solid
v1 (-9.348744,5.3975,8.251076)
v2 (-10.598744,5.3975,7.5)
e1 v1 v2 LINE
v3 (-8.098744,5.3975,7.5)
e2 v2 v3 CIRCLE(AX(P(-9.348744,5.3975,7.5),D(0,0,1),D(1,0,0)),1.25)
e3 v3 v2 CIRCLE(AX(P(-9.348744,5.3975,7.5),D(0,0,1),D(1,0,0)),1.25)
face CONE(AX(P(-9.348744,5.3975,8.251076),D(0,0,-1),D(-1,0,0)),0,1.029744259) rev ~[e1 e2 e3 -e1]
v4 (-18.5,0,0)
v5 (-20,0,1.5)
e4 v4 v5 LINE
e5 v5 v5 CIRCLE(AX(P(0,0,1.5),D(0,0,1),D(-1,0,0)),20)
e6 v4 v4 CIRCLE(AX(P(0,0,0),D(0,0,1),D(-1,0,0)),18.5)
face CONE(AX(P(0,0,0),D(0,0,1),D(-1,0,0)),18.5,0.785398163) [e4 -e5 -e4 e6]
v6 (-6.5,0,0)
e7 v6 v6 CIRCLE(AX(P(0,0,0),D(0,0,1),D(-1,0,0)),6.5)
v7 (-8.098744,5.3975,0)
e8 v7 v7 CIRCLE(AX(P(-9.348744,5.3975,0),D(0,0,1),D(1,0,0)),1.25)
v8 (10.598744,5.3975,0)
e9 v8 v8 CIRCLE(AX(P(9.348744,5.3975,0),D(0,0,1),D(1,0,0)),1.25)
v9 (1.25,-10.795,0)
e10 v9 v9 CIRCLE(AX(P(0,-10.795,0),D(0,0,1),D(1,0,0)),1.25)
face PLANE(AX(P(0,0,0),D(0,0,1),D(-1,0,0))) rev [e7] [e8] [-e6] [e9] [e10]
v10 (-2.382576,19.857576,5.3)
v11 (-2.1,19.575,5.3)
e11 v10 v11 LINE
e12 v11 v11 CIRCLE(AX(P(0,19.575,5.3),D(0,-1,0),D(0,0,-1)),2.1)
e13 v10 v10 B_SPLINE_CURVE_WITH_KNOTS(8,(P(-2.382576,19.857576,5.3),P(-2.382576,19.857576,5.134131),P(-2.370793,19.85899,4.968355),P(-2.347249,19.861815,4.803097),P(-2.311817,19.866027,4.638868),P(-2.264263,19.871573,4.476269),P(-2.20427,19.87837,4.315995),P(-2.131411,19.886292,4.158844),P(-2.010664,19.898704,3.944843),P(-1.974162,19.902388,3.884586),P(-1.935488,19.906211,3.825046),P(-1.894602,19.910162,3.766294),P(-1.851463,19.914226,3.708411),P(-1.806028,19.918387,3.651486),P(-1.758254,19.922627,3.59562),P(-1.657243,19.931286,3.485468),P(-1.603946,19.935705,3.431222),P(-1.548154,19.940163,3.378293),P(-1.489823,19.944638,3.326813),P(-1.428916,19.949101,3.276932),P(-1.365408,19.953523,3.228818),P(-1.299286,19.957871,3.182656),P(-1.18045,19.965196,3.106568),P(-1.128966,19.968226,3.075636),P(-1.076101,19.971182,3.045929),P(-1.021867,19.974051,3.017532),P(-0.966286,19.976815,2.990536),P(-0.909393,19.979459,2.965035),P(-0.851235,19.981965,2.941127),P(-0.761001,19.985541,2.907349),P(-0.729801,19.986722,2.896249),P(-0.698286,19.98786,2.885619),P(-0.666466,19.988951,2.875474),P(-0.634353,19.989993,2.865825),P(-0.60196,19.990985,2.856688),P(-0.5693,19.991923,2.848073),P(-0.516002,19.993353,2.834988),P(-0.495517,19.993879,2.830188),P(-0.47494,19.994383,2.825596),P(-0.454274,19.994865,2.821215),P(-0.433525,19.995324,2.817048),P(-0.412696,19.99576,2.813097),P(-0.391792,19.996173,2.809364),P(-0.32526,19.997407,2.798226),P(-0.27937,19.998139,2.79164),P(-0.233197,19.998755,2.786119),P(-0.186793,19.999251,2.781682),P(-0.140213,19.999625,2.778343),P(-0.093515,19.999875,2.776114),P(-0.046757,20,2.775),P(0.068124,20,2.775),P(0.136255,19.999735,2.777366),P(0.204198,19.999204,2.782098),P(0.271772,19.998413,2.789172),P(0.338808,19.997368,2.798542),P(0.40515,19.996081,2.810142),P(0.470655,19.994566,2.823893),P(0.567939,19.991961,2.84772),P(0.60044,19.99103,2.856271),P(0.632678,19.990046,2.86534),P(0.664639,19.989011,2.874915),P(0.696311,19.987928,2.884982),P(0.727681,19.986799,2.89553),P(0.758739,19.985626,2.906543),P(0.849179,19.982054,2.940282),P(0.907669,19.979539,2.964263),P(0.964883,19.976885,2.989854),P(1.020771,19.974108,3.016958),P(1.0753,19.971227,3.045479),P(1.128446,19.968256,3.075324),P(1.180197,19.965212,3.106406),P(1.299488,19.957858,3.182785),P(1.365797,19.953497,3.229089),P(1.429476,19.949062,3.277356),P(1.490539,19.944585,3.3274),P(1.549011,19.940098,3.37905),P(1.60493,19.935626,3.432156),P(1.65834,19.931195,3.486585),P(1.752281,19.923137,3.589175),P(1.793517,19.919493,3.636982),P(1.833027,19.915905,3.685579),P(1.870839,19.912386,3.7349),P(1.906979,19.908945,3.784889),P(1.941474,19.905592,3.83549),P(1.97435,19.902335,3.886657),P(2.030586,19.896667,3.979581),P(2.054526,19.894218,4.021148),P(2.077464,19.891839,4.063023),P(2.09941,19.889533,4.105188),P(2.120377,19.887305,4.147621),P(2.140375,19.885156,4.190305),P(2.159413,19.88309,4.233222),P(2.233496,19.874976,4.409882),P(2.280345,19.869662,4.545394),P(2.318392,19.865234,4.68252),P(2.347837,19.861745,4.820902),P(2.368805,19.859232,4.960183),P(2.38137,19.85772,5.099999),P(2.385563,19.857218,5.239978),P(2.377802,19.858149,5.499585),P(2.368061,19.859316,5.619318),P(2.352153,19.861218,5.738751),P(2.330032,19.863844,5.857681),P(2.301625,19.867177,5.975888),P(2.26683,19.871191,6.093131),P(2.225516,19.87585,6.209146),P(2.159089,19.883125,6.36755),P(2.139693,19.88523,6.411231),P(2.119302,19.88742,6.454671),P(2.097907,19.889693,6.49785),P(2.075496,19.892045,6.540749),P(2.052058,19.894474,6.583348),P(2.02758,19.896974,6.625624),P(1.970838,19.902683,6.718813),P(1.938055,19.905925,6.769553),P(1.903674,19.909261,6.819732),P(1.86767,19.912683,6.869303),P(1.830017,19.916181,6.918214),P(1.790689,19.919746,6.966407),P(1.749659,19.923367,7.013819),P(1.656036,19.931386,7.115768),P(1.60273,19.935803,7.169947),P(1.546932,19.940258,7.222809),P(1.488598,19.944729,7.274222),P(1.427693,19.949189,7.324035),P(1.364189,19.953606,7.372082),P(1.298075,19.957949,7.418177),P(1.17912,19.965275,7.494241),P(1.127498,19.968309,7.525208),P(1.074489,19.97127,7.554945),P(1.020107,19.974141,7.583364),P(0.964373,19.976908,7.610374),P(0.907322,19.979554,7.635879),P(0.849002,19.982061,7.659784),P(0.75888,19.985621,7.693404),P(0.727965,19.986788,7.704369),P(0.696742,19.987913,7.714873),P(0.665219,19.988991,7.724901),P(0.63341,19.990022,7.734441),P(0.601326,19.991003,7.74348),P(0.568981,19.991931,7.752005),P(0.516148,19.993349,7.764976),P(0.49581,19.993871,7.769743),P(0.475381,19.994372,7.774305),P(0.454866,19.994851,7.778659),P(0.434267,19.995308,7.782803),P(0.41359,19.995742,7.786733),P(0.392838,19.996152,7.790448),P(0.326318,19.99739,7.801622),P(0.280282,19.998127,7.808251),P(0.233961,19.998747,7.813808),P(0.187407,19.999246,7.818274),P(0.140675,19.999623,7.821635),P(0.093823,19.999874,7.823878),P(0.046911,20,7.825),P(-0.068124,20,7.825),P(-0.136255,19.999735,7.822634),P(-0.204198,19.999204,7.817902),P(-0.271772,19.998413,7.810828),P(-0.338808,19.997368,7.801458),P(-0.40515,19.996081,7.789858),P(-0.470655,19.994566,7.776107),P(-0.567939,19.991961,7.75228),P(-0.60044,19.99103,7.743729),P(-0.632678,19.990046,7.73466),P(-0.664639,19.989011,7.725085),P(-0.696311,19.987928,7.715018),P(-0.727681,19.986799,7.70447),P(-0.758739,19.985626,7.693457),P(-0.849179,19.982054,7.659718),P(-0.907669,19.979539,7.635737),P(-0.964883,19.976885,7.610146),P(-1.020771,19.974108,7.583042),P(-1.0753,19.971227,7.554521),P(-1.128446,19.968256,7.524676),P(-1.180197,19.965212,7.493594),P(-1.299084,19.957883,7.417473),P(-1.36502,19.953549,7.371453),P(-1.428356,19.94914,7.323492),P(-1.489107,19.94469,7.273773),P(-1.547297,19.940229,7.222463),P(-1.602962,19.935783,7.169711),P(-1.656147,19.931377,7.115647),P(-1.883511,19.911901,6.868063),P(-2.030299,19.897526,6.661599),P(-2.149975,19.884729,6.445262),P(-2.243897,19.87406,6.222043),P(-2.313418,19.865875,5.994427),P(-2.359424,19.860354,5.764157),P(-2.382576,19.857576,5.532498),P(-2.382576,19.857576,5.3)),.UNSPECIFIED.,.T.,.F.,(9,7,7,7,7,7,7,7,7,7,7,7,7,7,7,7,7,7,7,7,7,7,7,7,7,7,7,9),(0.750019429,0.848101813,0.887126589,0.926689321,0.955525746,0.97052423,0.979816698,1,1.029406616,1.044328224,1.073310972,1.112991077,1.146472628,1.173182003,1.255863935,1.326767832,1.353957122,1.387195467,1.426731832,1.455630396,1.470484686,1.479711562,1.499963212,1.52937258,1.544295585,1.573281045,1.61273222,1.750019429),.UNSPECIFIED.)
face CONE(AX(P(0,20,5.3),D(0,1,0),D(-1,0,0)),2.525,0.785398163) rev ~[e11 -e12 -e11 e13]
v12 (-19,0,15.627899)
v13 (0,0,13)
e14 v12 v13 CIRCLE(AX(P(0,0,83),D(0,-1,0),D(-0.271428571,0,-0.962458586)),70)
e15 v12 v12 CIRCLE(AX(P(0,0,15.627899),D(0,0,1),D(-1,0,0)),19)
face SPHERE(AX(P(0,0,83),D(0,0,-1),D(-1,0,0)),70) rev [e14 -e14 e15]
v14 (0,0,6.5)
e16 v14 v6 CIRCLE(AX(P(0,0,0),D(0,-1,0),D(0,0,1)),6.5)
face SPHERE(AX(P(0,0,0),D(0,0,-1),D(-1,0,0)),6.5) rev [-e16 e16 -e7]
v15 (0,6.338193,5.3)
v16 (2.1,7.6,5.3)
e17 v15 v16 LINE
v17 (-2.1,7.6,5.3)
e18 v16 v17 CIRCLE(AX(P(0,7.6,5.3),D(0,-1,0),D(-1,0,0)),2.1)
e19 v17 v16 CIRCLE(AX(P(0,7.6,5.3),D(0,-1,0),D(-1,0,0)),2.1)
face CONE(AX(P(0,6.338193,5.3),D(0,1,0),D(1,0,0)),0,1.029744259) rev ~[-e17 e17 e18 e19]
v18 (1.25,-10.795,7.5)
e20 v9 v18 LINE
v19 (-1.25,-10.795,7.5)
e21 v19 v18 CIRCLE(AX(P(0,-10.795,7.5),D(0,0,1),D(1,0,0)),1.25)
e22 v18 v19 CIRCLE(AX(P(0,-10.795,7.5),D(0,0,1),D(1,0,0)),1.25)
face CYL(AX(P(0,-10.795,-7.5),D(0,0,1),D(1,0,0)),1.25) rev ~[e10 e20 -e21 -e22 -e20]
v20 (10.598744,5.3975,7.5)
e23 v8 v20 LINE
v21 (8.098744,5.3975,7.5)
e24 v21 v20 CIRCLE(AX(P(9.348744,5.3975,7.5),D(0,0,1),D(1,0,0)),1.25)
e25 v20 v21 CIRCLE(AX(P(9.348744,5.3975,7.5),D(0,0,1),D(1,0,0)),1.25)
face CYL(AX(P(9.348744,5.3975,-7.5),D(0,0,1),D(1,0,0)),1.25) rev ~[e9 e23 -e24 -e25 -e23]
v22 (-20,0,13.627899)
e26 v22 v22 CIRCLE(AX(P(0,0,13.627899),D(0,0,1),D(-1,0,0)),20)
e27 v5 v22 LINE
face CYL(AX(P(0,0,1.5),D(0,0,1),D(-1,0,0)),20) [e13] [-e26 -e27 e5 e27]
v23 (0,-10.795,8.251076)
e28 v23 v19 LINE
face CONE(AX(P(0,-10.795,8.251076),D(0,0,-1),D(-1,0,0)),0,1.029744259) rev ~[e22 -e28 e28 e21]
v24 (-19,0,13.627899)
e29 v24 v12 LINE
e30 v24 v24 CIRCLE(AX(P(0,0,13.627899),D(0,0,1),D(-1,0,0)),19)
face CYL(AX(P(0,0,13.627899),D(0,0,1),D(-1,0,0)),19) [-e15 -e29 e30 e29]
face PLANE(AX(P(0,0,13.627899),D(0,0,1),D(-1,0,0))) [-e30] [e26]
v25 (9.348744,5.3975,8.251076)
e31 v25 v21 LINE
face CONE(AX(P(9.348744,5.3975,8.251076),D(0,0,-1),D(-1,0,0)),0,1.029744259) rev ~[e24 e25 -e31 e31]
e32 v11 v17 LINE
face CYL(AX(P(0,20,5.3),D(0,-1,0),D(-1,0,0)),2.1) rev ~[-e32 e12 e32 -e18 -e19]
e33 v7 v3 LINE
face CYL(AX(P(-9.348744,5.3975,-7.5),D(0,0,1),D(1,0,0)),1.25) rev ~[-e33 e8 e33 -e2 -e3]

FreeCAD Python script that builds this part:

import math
import FreeCAD as App
import Part
import Sketcher

V = App.Vector
Q = App.Units.Quantity

doc = App.newDocument("Part")
body = doc.addObject("PartDesign::Body", "Body")

sketch1 = doc.addObject("Sketcher::SketchObject", "Sketch")
body.addObject(sketch1)
sketch1.AttachmentSupport = (doc.XZ_Plane, [""])
sketch1.MapMode = "FlatFace"
sketch1.addGeometry(Part.ArcOfCircle(Part.Circle(V(0, 0, 0), V(0, 0, 1), 6.5), math.radians(90), math.radians(180)), False)
sketch1.addGeometry(Part.LineSegment(V(-6.5, 0, 0), V(-18.5, 0, 0)), False)
sketch1.addGeometry(Part.LineSegment(V(-18.5, 0, 0), V(-20, 1.5, 0)), False)
sketch1.addGeometry(Part.LineSegment(V(-20, 1.5, 0), V(-20, 13.6, 0)), False)
sketch1.addGeometry(Part.LineSegment(V(-20, 13.6, 0), V(-19, 13.6, 0)), False)
sketch1.addGeometry(Part.LineSegment(V(-19, 13.6, 0), V(-19, 15.6, 0)), False)
sketch1.addGeometry(Part.ArcOfCircle(Part.Circle(V(0, 83, 0), V(0, 0, 1), 70), math.radians(-105.75), math.radians(-90)), False)
sketch1.addGeometry(Part.LineSegment(V(0, 13, 0), V(0, 6.5, 0)), False)
sketch1.addConstraint(Sketcher.Constraint("Coincident", 0, 2, 1, 1))
sketch1.addConstraint(Sketcher.Constraint("Coincident", 1, 2, 2, 1))
sketch1.addConstraint(Sketcher.Constraint("Coincident", 2, 2, 3, 1))
sketch1.addConstraint(Sketcher.Constraint("Coincident", 3, 2, 4, 1))
sketch1.addConstraint(Sketcher.Constraint("Coincident", 4, 2, 5, 1))
sketch1.addConstraint(Sketcher.Constraint("Coincident", 5, 2, 6, 1))
sketch1.addConstraint(Sketcher.Constraint("Coincident", 6, 2, 7, 1))
sketch1.addConstraint(Sketcher.Constraint("Coincident", 7, 2, 0, 1))
sketch1.addConstraint(Sketcher.Constraint("Horizontal", 1))
sketch1.addConstraint(Sketcher.Constraint("Vertical", 3))
sketch1.addConstraint(Sketcher.Constraint("Horizontal", 4))
sketch1.addConstraint(Sketcher.Constraint("Vertical", 5))
sketch1.addConstraint(Sketcher.Constraint("Vertical", 7))
sketch1.addConstraint(Sketcher.Constraint("Coincident", 0, 3, -1, 1))
sketch1.addConstraint(Sketcher.Constraint("PointOnObject", 6, 3, -2))
sketch1.addConstraint(Sketcher.Constraint("PointOnObject", 0, 2, -1))
sketch1.addConstraint(Sketcher.Constraint("PointOnObject", 6, 2, -2))
sketch1.addConstraint(Sketcher.Constraint("Radius", 6, Q("70 mm")))
sketch1.addConstraint(Sketcher.Constraint("Radius", 0, Q("6.5 mm")))
sketch1.addConstraint(Sketcher.Constraint("DistanceX", 1, 2, 1, 1, Q("12 mm")))
sketch1.addConstraint(Sketcher.Constraint("DistanceX", 4, 1, 4, 2, Q("1 mm")))
sketch1.addConstraint(Sketcher.Constraint("DistanceY", 5, 1, 5, 2, Q("2 mm")))
sketch1.addConstraint(Sketcher.Constraint("Angle", 2, Q("135 deg")))
sketch1.addConstraint(Sketcher.Constraint("DistanceY", 7, 2, 7, 1, Q("6.5 mm")))
sketch1.addConstraint(Sketcher.Constraint("DistanceX", 2, 2, -1, 1, Q("20 mm")))
revolution = doc.addObject("PartDesign::Revolution", "Revolution")
body.addObject(revolution)
revolution.Profile = sketch1
revolution.ReferenceAxis = (sketch1, ["V_Axis"])
revolution.Angle = 360

sketch2 = doc.addObject("Sketcher::SketchObject", "Sketch001")
body.addObject(sketch2)
sketch2.AttachmentSupport = (doc.XY_Plane, [""])
sketch2.MapMode = "FlatFace"
sketch2.addGeometry(Part.Circle(V(0, -10.8, 0), V(0, 0, 1), 1.2), False)
sketch2.addGeometry(Part.Circle(V(9.3, 5.4, 0), V(0, 0, 1), 1.2), False)
sketch2.addGeometry(Part.Circle(V(-9.3, 5.4, 0), V(0, 0, 1), 1.2), False)
sketch2.addConstraint(Sketcher.Constraint("Equal", 0, 1))
sketch2.addConstraint(Sketcher.Constraint("Equal", 1, 2))
sketch2.addConstraint(Sketcher.Constraint("Symmetric", 1, 3, 2, 3, -2))
sketch2.addConstraint(Sketcher.Constraint("PointOnObject", 0, 3, -2))
sketch2.addConstraint(Sketcher.Constraint("Diameter", 0, Q("2.5 mm")))
sketch2.addConstraint(Sketcher.Constraint("DistanceY", 0, 3, -1, 1, Q("10.795 mm")))
sketch2.addConstraint(Sketcher.Constraint("DistanceY", -1, 1, 1, 3, Q("5.3975 mm")))
sketch2.addConstraint(Sketcher.Constraint("DistanceX", 2, 3, 1, 3, Q("18.697488 mm")))
doc.recompute()
hole = doc.addObject("PartDesign::Hole", "Hole")
body.addObject(hole)
hole.Profile = sketch2
hole.ThreadType = "None"
hole.Diameter = 2.5
hole.DepthType = "Dimension"
hole.Depth = 7.5
hole.DrillPoint = "Angled"
hole.DrillPointAngle = 118
hole.Reversed = True

sketch3 = doc.addObject("Sketcher::SketchObject", "Sketch002")
body.addObject(sketch3)
sketch3.AttachmentSupport = (doc.XZ_Plane, [""])
sketch3.MapMode = "FlatFace"
sketch3.AttachmentOffset = App.Placement(V(0, 0, -20), App.Rotation())
sketch3.addGeometry(Part.Circle(V(0, 5.3, 0), V(0, 0, 1), 2.1), False)
sketch3.addConstraint(Sketcher.Constraint("PointOnObject", 0, 3, -2))
sketch3.addConstraint(Sketcher.Constraint("Diameter", 0, Q("4.2 mm")))
sketch3.addConstraint(Sketcher.Constraint("DistanceY", -1, 1, 0, 3, Q("5.3 mm")))
doc.recompute()
hole2 = doc.addObject("PartDesign::Hole", "Hole001")
body.addObject(hole2)
hole2.Profile = sketch3
hole2.ThreadType = "None"
hole2.Diameter = 4.2
hole2.DepthType = "Dimension"
hole2.Depth = 12.4
hole2.DrillPoint = "Angled"
hole2.DrillPointAngle = 118
hole2.HoleCutType = "Countersink"
hole2.HoleCutDiameter = 5.05
hole2.HoleCutCountersinkAngle = 90
hole2.Reversed = True

doc.recompute()
